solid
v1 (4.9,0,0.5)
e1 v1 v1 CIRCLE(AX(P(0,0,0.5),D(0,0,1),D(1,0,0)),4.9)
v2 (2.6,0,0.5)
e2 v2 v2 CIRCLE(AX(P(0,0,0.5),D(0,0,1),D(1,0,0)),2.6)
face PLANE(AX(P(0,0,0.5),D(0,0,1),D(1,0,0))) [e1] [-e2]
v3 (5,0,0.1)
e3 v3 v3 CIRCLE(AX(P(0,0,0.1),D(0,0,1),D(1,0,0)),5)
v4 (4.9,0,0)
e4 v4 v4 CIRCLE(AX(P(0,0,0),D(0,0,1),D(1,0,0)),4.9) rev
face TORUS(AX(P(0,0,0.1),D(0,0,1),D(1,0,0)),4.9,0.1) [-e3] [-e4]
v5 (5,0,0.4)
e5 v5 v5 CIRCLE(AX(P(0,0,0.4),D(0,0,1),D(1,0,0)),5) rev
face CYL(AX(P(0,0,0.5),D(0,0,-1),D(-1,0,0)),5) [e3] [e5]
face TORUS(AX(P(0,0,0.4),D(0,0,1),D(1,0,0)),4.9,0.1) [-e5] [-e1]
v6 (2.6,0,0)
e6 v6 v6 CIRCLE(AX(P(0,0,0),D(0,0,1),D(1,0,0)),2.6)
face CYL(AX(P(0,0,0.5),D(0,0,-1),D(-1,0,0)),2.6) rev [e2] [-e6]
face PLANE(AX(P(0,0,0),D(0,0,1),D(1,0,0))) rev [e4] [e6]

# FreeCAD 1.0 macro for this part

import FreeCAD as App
import Part
import Sketcher

V = App.Vector


def edges_at(feature, points):
    """Names of the edges that pass closest to the given points."""
    edges = feature.Shape.Edges
    near = lambda p: min(range(len(edges)), key=lambda i: edges[i].distToShape(Part.Vertex(*p))[0])
    return sorted({f"Edge{near(p) + 1}" for p in points})

doc = App.newDocument("Part")
params = doc.addObject("Spreadsheet::Sheet", "Params")
for row, (alias, value) in enumerate([
    ("sketch1_diameter", "10 mm"),
    ("sketch1_diameter2", "5.2 mm"),
    ("pad1_length", "0.5 mm"),
    ("fillet_radius", "0.1 mm"),
], start=1):
    params.set(f"A{row}", alias)
    params.set(f"B{row}", "=" + value)
    params.setAlias(f"B{row}", alias)

body = doc.addObject("PartDesign::Body", "Body")

# Sketch on XY plane
sketch1 = doc.addObject("Sketcher::SketchObject", "Sketch")
body.addObject(sketch1)
sketch1.AttachmentSupport = (doc.XY_Plane, [""])
sketch1.MapMode = "FlatFace"
sketch1.addGeometry(Part.Circle(V(0, 0, 0), V(0, 0, 1), 5), False)
sketch1.addGeometry(Part.Circle(V(0, 0, 0), V(0, 0, 1), 2.6), False)
sketch1.addConstraint(Sketcher.Constraint("Coincident", 0, 3, -1, 1))
sketch1.addConstraint(Sketcher.Constraint("Coincident", 1, 3, -1, 1))
sketch1.addConstraint(Sketcher.Constraint("Diameter", 0, 10.0))
sketch1.addConstraint(Sketcher.Constraint("Diameter", 1, 5.2))
sketch1.setExpression("Constraints[2]", "Params.sketch1_diameter")
sketch1.setExpression("Constraints[3]", "Params.sketch1_diameter2")
pad1 = doc.addObject("PartDesign::Pad", "Pad")
body.addObject(pad1)
pad1.Profile = sketch1
pad1.setExpression("Length", "Params.pad1_length")
doc.recompute()

fillet = doc.addObject("PartDesign::Fillet", "Fillet")
body.addObject(fillet)
fillet.Base = (pad1, edges_at(pad1, [(-5, 0, 0), (-5, 0, 0.5)]))
fillet.setExpression("Radius", "Params.fillet_radius")

doc.recompute()
